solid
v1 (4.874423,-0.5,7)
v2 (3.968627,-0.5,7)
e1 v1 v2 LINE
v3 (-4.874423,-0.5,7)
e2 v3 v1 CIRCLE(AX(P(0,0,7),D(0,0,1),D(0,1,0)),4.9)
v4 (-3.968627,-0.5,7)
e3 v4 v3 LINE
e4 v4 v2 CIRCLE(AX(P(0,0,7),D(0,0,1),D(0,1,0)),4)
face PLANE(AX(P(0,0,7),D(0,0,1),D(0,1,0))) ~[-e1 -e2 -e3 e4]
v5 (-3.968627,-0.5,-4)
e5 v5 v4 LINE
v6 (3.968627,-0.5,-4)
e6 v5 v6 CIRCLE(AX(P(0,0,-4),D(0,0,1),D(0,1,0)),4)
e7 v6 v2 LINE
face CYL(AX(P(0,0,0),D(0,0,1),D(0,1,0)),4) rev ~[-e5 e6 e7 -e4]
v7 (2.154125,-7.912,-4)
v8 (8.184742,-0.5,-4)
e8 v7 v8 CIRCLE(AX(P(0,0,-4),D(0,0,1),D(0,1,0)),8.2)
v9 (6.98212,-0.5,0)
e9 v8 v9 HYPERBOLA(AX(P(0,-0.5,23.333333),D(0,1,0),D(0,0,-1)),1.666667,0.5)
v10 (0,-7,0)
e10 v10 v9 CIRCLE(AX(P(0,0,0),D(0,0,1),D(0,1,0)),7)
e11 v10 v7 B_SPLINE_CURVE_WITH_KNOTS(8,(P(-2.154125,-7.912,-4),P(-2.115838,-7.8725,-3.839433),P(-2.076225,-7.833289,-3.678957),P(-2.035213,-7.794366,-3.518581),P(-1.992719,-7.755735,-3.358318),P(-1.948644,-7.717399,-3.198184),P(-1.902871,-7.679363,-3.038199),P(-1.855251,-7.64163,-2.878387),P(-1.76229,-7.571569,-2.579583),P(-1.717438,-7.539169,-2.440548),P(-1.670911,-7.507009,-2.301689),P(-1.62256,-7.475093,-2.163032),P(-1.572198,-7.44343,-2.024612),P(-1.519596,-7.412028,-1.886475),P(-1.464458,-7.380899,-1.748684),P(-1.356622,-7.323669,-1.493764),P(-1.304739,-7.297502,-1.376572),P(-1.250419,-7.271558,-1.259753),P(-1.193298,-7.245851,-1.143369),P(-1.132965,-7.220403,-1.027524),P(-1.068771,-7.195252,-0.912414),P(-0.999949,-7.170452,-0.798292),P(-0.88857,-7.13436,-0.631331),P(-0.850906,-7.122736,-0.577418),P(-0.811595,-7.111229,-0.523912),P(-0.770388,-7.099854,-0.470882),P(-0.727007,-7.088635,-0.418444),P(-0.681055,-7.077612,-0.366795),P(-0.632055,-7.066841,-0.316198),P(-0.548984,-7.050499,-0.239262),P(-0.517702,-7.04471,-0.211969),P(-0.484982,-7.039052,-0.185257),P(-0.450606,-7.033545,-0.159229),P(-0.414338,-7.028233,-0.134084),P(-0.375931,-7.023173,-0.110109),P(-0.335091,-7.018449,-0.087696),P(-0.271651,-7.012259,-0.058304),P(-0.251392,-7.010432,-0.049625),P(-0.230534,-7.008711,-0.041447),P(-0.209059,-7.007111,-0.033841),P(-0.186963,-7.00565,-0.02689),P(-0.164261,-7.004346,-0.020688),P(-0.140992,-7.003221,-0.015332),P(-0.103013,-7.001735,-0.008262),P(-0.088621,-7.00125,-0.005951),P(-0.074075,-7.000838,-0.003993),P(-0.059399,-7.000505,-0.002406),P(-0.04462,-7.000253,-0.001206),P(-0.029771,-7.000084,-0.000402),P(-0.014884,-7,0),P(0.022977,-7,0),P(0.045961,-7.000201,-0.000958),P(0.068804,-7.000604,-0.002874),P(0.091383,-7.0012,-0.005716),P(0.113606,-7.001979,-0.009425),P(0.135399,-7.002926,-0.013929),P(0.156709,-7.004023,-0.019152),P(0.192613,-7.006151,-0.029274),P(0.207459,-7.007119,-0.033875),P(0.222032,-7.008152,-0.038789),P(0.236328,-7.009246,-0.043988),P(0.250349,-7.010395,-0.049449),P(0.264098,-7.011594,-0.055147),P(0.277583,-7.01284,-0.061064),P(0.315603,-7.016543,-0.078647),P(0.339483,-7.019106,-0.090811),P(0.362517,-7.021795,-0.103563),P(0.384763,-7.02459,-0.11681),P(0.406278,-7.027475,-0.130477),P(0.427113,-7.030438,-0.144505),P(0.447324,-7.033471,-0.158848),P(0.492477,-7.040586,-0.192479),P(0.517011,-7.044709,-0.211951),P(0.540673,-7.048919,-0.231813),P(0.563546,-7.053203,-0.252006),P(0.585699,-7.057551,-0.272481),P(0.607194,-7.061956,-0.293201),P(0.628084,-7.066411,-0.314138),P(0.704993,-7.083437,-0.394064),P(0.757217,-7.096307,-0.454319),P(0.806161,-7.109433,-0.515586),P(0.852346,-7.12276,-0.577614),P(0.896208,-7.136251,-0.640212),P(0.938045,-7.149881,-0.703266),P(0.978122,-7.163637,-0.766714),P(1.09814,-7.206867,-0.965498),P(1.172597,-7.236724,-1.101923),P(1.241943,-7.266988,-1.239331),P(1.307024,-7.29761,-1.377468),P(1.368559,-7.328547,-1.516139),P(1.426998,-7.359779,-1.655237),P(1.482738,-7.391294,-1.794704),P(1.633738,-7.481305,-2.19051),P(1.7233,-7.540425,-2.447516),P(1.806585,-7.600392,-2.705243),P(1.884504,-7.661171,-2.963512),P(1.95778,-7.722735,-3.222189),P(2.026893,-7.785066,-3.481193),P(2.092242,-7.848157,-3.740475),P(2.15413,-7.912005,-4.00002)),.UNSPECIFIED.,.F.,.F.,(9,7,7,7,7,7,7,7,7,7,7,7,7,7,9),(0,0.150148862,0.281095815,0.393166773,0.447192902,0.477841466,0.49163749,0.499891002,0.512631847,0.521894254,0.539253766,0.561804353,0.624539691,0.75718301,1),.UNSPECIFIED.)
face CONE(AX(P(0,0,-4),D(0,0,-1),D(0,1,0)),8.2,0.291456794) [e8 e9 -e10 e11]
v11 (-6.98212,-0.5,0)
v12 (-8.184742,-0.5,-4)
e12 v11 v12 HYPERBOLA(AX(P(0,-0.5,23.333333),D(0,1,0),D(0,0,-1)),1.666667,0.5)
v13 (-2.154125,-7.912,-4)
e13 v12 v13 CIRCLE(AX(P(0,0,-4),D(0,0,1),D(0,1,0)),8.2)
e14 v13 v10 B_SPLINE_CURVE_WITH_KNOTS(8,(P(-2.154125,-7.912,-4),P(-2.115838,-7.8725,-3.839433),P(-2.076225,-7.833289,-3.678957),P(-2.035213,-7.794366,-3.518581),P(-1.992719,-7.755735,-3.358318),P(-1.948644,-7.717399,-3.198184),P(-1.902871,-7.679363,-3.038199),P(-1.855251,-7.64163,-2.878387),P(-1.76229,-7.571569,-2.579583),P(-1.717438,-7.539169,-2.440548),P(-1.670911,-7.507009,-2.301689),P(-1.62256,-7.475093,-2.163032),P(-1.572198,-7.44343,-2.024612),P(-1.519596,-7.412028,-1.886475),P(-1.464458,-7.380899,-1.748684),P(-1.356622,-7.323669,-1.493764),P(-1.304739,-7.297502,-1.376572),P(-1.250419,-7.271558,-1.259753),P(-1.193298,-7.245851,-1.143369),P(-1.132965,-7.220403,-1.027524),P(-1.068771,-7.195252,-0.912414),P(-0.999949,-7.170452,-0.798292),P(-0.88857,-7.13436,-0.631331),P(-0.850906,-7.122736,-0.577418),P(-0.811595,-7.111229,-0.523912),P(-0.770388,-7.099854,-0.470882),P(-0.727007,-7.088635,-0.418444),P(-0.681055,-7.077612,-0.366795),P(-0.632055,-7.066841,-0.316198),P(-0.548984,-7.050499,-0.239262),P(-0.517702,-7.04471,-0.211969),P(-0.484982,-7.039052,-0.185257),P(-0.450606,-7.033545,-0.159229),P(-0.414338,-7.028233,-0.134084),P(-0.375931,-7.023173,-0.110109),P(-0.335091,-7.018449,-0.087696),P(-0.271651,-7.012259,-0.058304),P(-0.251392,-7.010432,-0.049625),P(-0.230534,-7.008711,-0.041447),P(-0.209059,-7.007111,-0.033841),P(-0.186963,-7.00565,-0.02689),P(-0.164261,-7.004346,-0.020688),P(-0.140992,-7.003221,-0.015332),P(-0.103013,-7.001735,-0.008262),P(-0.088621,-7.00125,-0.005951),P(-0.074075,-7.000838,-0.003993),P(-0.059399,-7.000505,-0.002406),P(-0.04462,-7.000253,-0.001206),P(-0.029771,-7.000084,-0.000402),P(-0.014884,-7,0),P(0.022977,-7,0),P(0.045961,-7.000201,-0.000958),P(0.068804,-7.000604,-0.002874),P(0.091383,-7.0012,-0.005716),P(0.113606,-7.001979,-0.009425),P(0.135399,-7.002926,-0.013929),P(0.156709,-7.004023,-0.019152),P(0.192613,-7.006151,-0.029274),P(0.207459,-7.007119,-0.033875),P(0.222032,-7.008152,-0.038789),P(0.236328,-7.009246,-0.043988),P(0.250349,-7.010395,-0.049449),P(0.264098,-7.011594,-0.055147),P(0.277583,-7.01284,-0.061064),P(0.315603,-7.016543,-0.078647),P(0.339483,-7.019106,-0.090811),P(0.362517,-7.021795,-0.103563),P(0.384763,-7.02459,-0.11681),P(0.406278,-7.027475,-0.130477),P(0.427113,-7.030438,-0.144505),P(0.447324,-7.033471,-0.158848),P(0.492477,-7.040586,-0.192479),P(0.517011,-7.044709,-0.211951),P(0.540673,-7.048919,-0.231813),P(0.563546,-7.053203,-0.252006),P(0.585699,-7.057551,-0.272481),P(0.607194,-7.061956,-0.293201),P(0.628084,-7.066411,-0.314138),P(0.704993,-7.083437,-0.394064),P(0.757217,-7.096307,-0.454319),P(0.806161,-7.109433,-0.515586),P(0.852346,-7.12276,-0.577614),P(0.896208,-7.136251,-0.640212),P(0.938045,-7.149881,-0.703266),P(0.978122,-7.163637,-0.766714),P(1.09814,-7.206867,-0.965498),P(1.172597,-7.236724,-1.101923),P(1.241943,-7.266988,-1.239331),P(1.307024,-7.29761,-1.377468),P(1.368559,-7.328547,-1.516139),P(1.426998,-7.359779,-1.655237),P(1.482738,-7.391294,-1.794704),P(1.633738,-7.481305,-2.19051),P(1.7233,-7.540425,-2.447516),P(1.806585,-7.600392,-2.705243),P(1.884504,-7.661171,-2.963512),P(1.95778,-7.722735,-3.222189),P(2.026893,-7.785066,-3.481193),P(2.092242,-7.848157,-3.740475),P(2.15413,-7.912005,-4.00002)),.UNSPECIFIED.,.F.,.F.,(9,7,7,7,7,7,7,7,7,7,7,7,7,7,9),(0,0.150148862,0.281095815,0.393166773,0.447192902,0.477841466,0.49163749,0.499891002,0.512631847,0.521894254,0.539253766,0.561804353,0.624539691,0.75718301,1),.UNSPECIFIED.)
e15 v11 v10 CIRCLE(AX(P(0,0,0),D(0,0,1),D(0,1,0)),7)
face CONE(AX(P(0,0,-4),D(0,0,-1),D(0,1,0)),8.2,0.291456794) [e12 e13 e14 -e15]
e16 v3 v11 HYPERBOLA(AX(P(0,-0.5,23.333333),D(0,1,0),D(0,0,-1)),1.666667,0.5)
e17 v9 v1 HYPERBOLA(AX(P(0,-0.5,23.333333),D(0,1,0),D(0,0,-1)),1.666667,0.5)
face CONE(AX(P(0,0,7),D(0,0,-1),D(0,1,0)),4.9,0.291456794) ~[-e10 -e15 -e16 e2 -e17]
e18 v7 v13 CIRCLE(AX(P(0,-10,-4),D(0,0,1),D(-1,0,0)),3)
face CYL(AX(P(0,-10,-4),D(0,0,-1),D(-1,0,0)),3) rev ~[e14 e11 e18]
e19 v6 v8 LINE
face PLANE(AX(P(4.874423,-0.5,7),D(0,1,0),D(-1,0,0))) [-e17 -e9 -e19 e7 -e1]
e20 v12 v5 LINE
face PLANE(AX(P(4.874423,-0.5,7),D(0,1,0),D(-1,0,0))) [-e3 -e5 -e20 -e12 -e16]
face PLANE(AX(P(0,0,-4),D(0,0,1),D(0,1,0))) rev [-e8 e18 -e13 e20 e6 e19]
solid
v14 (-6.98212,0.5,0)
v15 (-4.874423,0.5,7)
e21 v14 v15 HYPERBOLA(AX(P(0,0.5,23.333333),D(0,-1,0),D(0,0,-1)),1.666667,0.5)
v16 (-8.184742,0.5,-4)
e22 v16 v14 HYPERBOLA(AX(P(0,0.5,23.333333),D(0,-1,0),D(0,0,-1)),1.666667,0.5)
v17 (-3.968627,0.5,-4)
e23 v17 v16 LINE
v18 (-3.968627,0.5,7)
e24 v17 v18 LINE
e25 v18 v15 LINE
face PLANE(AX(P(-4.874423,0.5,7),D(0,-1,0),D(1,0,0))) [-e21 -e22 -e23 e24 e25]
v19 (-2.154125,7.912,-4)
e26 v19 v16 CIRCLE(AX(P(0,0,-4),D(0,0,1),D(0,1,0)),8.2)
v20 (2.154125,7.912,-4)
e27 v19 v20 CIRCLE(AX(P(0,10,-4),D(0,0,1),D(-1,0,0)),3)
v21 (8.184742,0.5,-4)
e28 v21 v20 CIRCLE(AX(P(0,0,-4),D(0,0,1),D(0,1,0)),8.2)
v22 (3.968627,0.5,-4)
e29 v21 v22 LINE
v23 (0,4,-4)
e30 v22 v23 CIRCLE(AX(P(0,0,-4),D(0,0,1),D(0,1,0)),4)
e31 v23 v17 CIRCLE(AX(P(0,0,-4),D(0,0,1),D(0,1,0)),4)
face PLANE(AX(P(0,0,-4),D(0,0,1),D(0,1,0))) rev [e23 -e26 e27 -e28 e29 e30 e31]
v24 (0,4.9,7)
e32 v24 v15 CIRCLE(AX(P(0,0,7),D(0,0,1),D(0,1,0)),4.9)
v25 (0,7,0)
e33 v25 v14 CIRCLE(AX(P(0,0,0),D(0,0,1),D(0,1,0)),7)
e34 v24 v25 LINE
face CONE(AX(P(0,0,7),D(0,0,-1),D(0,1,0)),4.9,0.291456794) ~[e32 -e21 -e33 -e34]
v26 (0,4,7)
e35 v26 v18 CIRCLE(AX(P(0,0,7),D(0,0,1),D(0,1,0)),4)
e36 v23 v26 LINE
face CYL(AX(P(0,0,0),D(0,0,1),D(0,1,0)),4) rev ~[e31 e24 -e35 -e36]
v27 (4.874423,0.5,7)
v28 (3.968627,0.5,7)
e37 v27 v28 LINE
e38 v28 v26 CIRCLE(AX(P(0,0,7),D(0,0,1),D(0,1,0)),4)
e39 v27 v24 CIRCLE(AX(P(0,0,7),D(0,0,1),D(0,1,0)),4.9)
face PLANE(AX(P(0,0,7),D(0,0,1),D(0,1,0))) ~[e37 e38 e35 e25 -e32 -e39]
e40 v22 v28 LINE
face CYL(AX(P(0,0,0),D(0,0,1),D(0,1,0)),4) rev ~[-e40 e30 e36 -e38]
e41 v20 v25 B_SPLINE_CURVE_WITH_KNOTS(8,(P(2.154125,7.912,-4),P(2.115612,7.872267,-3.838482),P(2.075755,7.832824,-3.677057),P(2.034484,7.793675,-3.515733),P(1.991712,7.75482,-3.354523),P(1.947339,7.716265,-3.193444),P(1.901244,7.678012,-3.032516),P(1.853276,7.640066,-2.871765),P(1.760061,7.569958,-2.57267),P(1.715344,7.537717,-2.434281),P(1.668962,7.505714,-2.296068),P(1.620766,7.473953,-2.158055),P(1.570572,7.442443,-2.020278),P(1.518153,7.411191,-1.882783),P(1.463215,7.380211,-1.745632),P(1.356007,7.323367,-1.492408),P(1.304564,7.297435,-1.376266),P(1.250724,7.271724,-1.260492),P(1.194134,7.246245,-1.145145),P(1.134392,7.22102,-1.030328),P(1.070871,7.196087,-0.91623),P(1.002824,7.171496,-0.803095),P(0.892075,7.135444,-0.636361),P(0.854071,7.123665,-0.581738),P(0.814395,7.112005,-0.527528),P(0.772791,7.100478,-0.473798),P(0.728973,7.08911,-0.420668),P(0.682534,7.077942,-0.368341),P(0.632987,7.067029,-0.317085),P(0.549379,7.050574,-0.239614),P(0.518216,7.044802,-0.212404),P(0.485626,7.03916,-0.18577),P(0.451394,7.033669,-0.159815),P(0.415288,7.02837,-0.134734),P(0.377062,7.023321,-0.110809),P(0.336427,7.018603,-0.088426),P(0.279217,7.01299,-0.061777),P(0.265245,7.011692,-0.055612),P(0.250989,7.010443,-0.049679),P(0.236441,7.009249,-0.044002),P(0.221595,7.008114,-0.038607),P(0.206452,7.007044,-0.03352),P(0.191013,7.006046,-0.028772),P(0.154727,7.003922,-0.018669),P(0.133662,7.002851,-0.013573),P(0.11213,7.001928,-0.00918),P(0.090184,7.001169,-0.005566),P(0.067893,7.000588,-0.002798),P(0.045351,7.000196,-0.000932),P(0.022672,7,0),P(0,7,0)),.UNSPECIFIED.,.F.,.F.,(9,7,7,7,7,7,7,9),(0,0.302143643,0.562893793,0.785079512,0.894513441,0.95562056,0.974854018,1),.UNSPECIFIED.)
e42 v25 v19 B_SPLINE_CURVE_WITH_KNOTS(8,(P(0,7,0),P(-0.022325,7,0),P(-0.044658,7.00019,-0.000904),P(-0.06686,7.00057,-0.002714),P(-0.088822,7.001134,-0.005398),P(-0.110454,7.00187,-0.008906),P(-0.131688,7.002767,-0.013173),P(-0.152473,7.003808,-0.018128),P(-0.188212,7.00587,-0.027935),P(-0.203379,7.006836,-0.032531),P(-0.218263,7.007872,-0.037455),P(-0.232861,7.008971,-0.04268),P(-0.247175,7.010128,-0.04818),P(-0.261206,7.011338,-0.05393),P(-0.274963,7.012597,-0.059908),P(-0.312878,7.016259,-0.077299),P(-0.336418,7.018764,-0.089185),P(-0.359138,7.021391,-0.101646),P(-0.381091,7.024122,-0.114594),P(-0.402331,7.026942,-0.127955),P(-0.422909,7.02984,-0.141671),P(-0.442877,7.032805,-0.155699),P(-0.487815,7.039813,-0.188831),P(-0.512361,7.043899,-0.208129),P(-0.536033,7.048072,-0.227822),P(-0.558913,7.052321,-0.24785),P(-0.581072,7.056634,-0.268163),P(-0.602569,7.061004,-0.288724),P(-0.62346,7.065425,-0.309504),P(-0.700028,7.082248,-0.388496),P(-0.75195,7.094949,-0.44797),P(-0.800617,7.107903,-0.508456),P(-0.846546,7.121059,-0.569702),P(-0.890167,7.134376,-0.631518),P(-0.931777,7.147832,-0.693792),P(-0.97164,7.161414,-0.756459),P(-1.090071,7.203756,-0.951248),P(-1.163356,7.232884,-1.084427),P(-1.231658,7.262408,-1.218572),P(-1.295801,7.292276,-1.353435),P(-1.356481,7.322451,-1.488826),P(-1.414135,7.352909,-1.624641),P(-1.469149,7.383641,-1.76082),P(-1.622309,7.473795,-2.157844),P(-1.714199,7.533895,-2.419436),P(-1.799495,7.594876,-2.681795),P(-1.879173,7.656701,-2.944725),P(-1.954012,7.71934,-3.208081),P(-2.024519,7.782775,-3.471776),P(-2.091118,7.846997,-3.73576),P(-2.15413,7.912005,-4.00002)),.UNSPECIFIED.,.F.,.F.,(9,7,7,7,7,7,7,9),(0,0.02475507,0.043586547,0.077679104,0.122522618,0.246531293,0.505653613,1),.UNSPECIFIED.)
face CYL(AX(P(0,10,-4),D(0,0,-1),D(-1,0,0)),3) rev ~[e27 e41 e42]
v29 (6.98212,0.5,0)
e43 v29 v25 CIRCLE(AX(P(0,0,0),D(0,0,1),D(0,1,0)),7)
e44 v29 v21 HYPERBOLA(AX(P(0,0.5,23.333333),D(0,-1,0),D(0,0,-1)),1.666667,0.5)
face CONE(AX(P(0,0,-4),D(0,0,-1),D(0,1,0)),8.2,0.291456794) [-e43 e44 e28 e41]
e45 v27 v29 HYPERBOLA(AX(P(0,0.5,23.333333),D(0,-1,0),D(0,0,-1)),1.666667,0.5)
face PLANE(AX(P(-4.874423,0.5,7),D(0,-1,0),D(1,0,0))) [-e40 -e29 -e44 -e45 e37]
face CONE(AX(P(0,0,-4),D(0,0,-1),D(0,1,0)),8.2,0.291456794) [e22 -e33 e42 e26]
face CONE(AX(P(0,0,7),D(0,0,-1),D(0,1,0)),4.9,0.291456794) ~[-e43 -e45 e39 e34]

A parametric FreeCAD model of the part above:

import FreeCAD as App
import Part
import Sketcher

V = App.Vector

doc = App.newDocument("Part")
params = doc.addObject("Spreadsheet::Sheet", "Params")
for row, (alias, value) in enumerate([
    ("sketch1_width", "4.2 mm"),
    ("sketch1_width2", "0.9 mm"),
    ("revolution_angle", "360 deg"),
    ("sketch2_width", "20 mm"),
    ("sketch2_height", "1 mm"),
    ("sketch3_diameter", "6 mm"),
], start=1):
    params.set(f"A{row}", alias)
    params.set(f"B{row}", "=" + value)
    params.setAlias(f"B{row}", alias)

body = doc.addObject("PartDesign::Body", "Body")
body.AllowCompound = True

sketch1 = body.newObject("Sketcher::SketchObject", "Sketch")
sketch1.AttachmentSupport = (doc.getObject("YZ_Plane"), [""])
sketch1.MapMode = "FlatFace"
sketch1.addGeometry([
    Part.LineSegment(V(4, 7, 0), V(4, -4, 0)),
    Part.LineSegment(V(4, -4, 0), V(8.2, -4, 0)),
    Part.LineSegment(V(8.2, -4, 0), V(4.9, 7, 0)),
    Part.LineSegment(V(4.9, 7, 0), V(4, 7, 0)),
], False)
sketch1.addConstraint([
    Sketcher.Constraint("Coincident", 0, 2, 1, 1),
    Sketcher.Constraint("Coincident", 1, 2, 2, 1),
    Sketcher.Constraint("Coincident", 2, 2, 3, 1),
    Sketcher.Constraint("Coincident", 3, 2, 0, 1),
    Sketcher.Constraint("Vertical", 0),
    Sketcher.Constraint("Horizontal", 1),
    Sketcher.Constraint("Horizontal", 3),
    Sketcher.Constraint("DistanceX", -1, 1, 0, 2, 4.0),
    Sketcher.Constraint("DistanceY", 0, 2, -1, 1, 4.0),
    Sketcher.Constraint("DistanceY", -1, 1, 2, 2, 7.0),
    Sketcher.Constraint("DistanceX", 1, 1, 1, 2, 4.2),
    Sketcher.Constraint("DistanceX", 3, 2, 3, 1, 0.9),
])
sketch1.setExpression("Constraints[10]", "Params.sketch1_width")
sketch1.setExpression("Constraints[11]", "Params.sketch1_width2")
revolution = body.newObject("PartDesign::Revolution", "Revolution")
revolution.Profile = sketch1
revolution.ReferenceAxis = (sketch1, ["V_Axis"])
revolution.setExpression("Angle", "Params.revolution_angle")

sketch2 = body.newObject("Sketcher::SketchObject", "Sketch001")
sketch2.AttachmentSupport = (doc.getObject("XY_Plane"), [""])
sketch2.MapMode = "FlatFace"
sketch2.AttachmentOffset = App.Placement(V(0, 0, 7), App.Rotation())
sketch2.addGeometry([
    Part.LineSegment(V(10, -0.5, 0), V(10, 0.5, 0)),
    Part.LineSegment(V(10, 0.5, 0), V(-10, 0.5, 0)),
    Part.LineSegment(V(-10, 0.5, 0), V(-10, -0.5, 0)),
    Part.LineSegment(V(-10, -0.5, 0), V(10, -0.5, 0)),
], False)
sketch2.addConstraint([
    Sketcher.Constraint("Coincident", 0, 2, 1, 1),
    Sketcher.Constraint("Coincident", 1, 2, 2, 1),
    Sketcher.Constraint("Coincident", 2, 2, 3, 1),
    Sketcher.Constraint("Coincident", 3, 2, 0, 1),
    Sketcher.Constraint("Vertical", 0),
    Sketcher.Constraint("Horizontal", 1),
    Sketcher.Constraint("Vertical", 2),
    Sketcher.Constraint("Horizontal", 3),
    Sketcher.Constraint("Symmetric", 0, 2, 2, 2, -1, 1),
    Sketcher.Constraint("DistanceX", 1, 2, 1, 1, 20.0),
    Sketcher.Constraint("DistanceY", 0, 1, 0, 2, 1.0),
])
sketch2.setExpression("Constraints[9]", "Params.sketch2_width")
sketch2.setExpression("Constraints[10]", "Params.sketch2_height")
pocket1 = body.newObject("PartDesign::Pocket", "Pocket")
pocket1.Profile = sketch2
pocket1.Type = "ThroughAll"

sketch3 = body.newObject("Sketcher::SketchObject", "Sketch002")
sketch3.AttachmentSupport = (doc.getObject("XY_Plane"), [""])
sketch3.MapMode = "FlatFace"
sketch3.AttachmentOffset = App.Placement(V(0, 0, -4), App.Rotation())
sketch3.addGeometry([
    Part.Circle(V(0, -10, 0), V(0, 0, 1), 3),
    Part.Circle(V(0, 10, 0), V(0, 0, 1), 3),
], False)
sketch3.addConstraint([
    Sketcher.Constraint("Equal", 0, 1),
    Sketcher.Constraint("Symmetric", 0, 3, 1, 3, -1, 1),
    Sketcher.Constraint("PointOnObject", 0, 3, -2),
    Sketcher.Constraint("Diameter", 0, 6.0),
    Sketcher.Constraint("DistanceY", 0, 3, 1, 3, 20.0),
])
sketch3.setExpression("Constraints[3]", "Params.sketch3_diameter")
pocket2 = body.newObject("PartDesign::Pocket", "Pocket001")
pocket2.Profile = sketch3
pocket2.Type = "ThroughAll"
pocket2.Reversed = True

doc.recompute()
